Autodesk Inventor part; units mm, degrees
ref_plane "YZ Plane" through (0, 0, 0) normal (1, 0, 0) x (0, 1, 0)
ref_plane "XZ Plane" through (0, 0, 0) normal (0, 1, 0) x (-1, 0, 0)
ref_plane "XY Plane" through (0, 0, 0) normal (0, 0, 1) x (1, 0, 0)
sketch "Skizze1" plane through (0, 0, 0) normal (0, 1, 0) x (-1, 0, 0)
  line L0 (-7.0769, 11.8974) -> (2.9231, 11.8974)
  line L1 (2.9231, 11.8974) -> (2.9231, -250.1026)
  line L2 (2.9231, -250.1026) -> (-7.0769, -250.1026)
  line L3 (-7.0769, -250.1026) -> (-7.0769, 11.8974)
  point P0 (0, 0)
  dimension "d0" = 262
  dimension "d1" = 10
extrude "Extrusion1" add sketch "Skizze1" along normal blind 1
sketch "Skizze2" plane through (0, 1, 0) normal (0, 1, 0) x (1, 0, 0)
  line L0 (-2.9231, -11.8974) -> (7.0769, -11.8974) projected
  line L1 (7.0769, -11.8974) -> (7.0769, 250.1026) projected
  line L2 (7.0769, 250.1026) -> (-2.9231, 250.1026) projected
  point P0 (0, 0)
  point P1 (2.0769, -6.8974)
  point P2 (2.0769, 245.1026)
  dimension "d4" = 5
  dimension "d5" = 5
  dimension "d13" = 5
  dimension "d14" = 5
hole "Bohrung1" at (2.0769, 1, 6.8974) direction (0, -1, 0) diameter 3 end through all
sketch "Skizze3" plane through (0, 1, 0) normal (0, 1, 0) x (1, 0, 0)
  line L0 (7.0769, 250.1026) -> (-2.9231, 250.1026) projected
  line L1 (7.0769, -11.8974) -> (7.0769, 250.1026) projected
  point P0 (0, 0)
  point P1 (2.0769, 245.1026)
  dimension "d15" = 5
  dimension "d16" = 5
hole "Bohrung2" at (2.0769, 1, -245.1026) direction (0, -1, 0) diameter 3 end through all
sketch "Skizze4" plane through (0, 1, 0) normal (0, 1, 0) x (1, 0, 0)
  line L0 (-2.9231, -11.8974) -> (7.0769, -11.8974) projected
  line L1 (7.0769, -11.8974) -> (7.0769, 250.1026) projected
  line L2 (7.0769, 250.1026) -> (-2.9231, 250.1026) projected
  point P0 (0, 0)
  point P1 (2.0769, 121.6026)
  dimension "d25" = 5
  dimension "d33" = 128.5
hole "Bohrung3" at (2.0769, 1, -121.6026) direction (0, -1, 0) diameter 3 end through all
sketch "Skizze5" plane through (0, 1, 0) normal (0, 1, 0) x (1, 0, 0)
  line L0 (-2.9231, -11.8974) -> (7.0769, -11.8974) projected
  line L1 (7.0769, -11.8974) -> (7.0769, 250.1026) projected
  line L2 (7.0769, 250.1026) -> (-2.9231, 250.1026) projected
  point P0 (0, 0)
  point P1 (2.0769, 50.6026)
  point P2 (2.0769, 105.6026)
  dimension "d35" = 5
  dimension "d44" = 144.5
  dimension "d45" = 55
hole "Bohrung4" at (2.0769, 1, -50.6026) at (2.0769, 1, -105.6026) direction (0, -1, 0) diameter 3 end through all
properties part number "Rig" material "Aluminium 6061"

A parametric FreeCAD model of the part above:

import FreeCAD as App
import Part
import Sketcher


def add_polygon(sketch, points):
    """Adds a closed chain of lines whose ends are joined by coincident constraints."""
    first, n = sketch.GeometryCount, len(points)
    for a, b in zip(points, points[1:] + points[:1]):
        sketch.addGeometry(Part.LineSegment(App.Vector(*a, 0), App.Vector(*b, 0)), False)
    for i in range(n):
        sketch.addConstraint(Sketcher.Constraint("Coincident", first + i, 2, first + (i + 1) % n, 1))

doc = App.newDocument("Part")
body = doc.addObject("PartDesign::Body", "Body")

# Sketch on XZ plane
sketch1 = body.newObject("Sketcher::SketchObject", "Sketch")
sketch1.AttachmentSupport = (doc.getObject("XZ_Plane"), [""])
sketch1.MapMode = "FlatFace"
add_polygon(sketch1, [(-2.9231, 11.8974), (7.0769, 11.8974), (7.0769, -250.1026), (-2.9231, -250.1026)])  # lines 0-3
sketch1.addConstraint([
    Sketcher.Constraint("Horizontal", 0),
    Sketcher.Constraint("Vertical", 1),
    Sketcher.Constraint("Horizontal", 2),
    Sketcher.Constraint("Vertical", 3),
    Sketcher.Constraint("DistanceX", 0, 1, 0, 2, 10.0),
    Sketcher.Constraint("DistanceY", 1, 2, 1, 1, 262.0),
    Sketcher.Constraint("DistanceX", -1, 1, 0, 2, 7.077),
    Sketcher.Constraint("DistanceY", -1, 1, 0, 2, 11.8974),
])
pad1 = body.newObject("PartDesign::Pad", "Pad")
pad1.Profile = sketch1
pad1.Length = 1
pad1.Reversed = True

# Sketch on XZ plane
sketch2 = body.newObject("Sketcher::SketchObject", "Sketch001")
sketch2.AttachmentSupport = (doc.getObject("XZ_Plane"), [""])
sketch2.MapMode = "FlatFace"
sketch2.AttachmentOffset = App.Placement(App.Vector(0, 0, -1), App.Rotation())
sketch2.addGeometry(Part.Circle(App.Vector(2.0769, 6.8974, 0), App.Vector(0, 0, 1), 1.5), False)
sketch2.addConstraint([
    Sketcher.Constraint("Diameter", 0, 3.0),
    Sketcher.Constraint("DistanceX", -1, 1, 0, 3, 2.077),
    Sketcher.Constraint("DistanceY", -1, 1, 0, 3, 6.8974),
])
doc.recompute()
hole = body.newObject("PartDesign::Hole", "Hole")
hole.Profile = sketch2
hole.ThreadType = "None"
hole.Diameter = 3
hole.DepthType = "ThroughAll"
hole.Reversed = True

# Sketch on XZ plane
sketch3 = body.newObject("Sketcher::SketchObject", "Sketch002")
sketch3.AttachmentSupport = (doc.getObject("XZ_Plane"), [""])
sketch3.MapMode = "FlatFace"
sketch3.AttachmentOffset = App.Placement(App.Vector(0, 0, -1), App.Rotation())
sketch3.addGeometry(Part.Circle(App.Vector(2.0769, -245.1026, 0), App.Vector(0, 0, 1), 1.5), False)
sketch3.addConstraint([
    Sketcher.Constraint("Diameter", 0, 3.0),
    Sketcher.Constraint("DistanceX", -1, 1, 0, 3, 2.077),
    Sketcher.Constraint("DistanceY", 0, 3, -1, 1, 245.1026),
])
doc.recompute()
hole2 = body.newObject("PartDesign::Hole", "Hole001")
hole2.Profile = sketch3
hole2.ThreadType = "None"
hole2.Diameter = 3
hole2.DepthType = "ThroughAll"
hole2.Reversed = True

# Sketch on XZ plane
sketch4 = body.newObject("Sketcher::SketchObject", "Sketch003")
sketch4.AttachmentSupport = (doc.getObject("XZ_Plane"), [""])
sketch4.MapMode = "FlatFace"
sketch4.AttachmentOffset = App.Placement(App.Vector(0, 0, -1), App.Rotation())
sketch4.addGeometry(Part.Circle(App.Vector(2.0769, -121.6026, 0), App.Vector(0, 0, 1), 1.5), False)
sketch4.addConstraint([
    Sketcher.Constraint("Diameter", 0, 3.0),
    Sketcher.Constraint("DistanceX", -1, 1, 0, 3, 2.077),
    Sketcher.Constraint("DistanceY", 0, 3, -1, 1, 121.6026),
])
doc.recompute()
hole3 = body.newObject("PartDesign::Hole", "Hole002")
hole3.Profile = sketch4
hole3.ThreadType = "None"
hole3.Diameter = 3
hole3.DepthType = "ThroughAll"
hole3.Reversed = True

# Sketch on XZ plane
sketch5 = body.newObject("Sketcher::SketchObject", "Sketch004")
sketch5.AttachmentSupport = (doc.getObject("XZ_Plane"), [""])
sketch5.MapMode = "FlatFace"
sketch5.AttachmentOffset = App.Placement(App.Vector(0, 0, -1), App.Rotation())
sketch5.addGeometry([
    Part.Circle(App.Vector(2.0769, -50.6026, 0), App.Vector(0, 0, 1), 1.5),
    Part.Circle(App.Vector(2.0769, -105.6026, 0), App.Vector(0, 0, 1), 1.5),
], False)
sketch5.addConstraint([
    Sketcher.Constraint("Equal", 0, 1),
    Sketcher.Constraint("Vertical", 0, 3, 1, 3),
    Sketcher.Constraint("Diameter", 0, 3.0),
    Sketcher.Constraint("DistanceY", 1, 3, 0, 3, 55.0),
    Sketcher.Constraint("DistanceX", -1, 1, 0, 3, 2.077),
    Sketcher.Constraint("DistanceY", 0, 3, -1, 1, 50.6026),
])
doc.recompute()
hole4 = body.newObject("PartDesign::Hole", "Hole003")
hole4.Profile = sketch5
hole4.ThreadType = "None"
hole4.Diameter = 3
hole4.DepthType = "ThroughAll"
hole4.Reversed = True

doc.recompute()
